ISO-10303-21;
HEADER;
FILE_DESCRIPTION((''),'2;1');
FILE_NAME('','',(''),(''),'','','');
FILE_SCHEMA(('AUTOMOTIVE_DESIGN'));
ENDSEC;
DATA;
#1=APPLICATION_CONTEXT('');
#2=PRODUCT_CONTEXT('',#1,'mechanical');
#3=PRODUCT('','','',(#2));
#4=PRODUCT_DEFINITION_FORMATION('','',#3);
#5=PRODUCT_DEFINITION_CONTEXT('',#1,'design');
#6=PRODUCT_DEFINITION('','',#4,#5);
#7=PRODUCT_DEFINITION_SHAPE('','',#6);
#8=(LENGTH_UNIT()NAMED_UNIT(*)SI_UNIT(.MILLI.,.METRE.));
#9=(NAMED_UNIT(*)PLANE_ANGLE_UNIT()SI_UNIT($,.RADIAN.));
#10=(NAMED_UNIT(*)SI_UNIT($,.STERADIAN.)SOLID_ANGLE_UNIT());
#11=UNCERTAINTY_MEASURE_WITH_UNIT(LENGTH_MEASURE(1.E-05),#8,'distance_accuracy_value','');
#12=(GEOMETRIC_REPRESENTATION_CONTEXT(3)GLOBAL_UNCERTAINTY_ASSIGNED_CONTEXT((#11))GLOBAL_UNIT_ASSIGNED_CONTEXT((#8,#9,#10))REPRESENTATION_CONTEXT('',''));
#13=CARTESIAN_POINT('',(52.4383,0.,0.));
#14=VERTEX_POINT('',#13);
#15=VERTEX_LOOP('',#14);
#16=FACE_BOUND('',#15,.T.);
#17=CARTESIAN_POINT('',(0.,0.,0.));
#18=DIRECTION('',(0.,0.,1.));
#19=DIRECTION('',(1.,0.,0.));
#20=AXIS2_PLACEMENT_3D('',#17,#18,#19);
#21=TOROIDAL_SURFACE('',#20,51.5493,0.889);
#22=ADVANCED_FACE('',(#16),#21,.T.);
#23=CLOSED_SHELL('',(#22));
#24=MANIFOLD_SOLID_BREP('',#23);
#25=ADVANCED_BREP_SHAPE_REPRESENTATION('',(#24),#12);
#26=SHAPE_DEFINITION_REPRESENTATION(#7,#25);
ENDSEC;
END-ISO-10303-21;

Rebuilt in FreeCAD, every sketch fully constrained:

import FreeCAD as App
import Part
import Sketcher
Q = App.Units.Quantity

doc = App.newDocument("Part")
body = doc.addObject("PartDesign::Body", "Body")

# Sketch on YZ plane
sketch1 = doc.addObject("Sketcher::SketchObject", "Sketch")
body.addObject(sketch1)
sketch1.AttachmentSupport = (doc.YZ_Plane, [""])
sketch1.MapMode = "FlatFace"
sketch1.addGeometry(Part.Circle(App.Vector(-51.5493, 0, 0), App.Vector(0, 0, 1), 0.889), False)
sketch1.addConstraint([
    Sketcher.Constraint("PointOnObject", 0, 3, -1),
    Sketcher.Constraint("Diameter", 0, Q("0.07 in")),
    Sketcher.Constraint("DistanceX", 0, 3, -1, 1, Q("2.0295 in")),
])
revolution = doc.addObject("PartDesign::Revolution", "Revolution")
body.addObject(revolution)
revolution.Profile = sketch1
revolution.ReferenceAxis = (sketch1, ["V_Axis"])
revolution.Angle = 360

doc.recompute()
